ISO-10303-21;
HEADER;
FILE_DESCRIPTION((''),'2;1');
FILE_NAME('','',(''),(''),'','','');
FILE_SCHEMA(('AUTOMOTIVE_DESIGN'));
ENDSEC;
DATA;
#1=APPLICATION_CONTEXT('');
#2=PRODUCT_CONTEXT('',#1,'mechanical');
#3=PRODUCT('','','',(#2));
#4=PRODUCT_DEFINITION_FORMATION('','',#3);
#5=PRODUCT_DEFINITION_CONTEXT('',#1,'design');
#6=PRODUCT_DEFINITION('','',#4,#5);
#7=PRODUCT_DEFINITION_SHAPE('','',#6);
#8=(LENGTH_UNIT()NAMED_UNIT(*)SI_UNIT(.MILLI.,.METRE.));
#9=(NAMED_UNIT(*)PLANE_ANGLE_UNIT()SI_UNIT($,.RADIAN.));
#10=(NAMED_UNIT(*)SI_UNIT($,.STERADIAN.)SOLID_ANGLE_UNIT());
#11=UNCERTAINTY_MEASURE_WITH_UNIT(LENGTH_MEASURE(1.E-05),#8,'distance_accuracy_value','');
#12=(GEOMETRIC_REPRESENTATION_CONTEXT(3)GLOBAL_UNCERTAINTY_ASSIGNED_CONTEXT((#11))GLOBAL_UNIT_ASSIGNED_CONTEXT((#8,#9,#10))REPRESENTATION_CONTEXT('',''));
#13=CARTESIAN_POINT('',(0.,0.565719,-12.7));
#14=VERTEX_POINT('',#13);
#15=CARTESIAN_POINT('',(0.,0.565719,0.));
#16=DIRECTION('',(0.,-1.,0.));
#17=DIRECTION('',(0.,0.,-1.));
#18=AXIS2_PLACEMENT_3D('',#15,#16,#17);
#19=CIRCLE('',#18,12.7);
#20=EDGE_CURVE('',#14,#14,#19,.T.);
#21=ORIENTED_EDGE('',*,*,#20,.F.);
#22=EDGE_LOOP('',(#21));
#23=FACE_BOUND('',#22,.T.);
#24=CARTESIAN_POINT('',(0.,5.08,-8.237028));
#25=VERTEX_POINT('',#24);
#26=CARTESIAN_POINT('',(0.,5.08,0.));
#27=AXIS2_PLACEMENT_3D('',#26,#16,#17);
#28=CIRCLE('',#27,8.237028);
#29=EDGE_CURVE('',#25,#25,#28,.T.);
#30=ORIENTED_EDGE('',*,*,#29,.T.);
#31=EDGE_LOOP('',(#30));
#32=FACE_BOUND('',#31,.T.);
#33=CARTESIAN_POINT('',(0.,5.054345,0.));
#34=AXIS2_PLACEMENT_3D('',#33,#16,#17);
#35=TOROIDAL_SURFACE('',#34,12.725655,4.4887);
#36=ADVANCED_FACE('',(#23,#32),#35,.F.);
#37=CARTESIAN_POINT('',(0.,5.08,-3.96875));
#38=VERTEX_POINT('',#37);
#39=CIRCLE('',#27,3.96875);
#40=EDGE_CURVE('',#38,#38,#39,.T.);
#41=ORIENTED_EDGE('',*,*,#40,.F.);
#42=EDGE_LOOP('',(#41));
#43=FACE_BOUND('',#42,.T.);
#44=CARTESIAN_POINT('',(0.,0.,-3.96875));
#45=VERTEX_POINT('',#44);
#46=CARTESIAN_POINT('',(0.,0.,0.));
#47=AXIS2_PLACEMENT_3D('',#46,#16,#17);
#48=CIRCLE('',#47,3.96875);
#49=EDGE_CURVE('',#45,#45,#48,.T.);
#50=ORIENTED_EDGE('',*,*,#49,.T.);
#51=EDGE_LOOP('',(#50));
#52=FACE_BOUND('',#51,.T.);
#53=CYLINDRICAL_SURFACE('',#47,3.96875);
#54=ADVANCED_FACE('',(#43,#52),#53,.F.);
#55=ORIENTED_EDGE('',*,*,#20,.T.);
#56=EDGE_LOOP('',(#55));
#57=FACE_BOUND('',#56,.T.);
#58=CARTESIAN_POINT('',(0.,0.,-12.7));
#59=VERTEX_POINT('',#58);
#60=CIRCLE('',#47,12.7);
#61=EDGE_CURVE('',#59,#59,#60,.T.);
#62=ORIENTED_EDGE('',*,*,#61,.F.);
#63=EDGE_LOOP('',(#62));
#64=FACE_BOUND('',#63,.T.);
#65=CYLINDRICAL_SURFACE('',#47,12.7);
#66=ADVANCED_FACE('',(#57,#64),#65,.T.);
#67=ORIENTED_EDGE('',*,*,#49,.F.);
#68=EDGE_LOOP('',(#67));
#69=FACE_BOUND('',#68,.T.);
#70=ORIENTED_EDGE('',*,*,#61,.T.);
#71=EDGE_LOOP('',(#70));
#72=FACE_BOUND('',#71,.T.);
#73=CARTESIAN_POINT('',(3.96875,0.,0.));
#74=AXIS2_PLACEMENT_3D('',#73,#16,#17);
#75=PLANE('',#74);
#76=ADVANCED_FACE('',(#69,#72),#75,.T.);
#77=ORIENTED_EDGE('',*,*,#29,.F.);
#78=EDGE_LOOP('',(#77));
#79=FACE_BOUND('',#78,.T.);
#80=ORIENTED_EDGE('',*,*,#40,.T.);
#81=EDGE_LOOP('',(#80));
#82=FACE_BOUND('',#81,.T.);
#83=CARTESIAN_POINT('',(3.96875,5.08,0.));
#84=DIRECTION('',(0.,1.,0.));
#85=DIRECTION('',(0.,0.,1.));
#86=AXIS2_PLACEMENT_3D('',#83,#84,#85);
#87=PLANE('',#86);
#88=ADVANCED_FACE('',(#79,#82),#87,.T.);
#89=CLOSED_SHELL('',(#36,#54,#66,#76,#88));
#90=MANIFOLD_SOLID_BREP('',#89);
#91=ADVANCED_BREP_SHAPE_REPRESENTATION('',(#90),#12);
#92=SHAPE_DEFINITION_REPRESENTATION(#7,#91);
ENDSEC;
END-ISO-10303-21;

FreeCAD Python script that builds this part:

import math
import FreeCAD as App
import Part
import Sketcher
Q = App.Units.Quantity

doc = App.newDocument("Part")
body = doc.addObject("PartDesign::Body", "Body")

# Sketch on XY plane
sketch1 = doc.addObject("Sketcher::SketchObject", "Sketch")
body.addObject(sketch1)
sketch1.AttachmentSupport = (doc.XY_Plane, [""])
sketch1.MapMode = "FlatFace"
sketch1.addGeometry(Part.LineSegment(App.Vector(4, 0, 0), App.Vector(12.7, 0, 0)), False)
sketch1.addGeometry(Part.LineSegment(App.Vector(12.7, 0, 0), App.Vector(12.7, 0.6, 0)), False)
sketch1.addGeometry(Part.ArcOfCircle(Part.Circle(App.Vector(12.7, 5.1, 0), App.Vector(0, 0, 1), 4.5), math.radians(180), math.radians(270)), False)
sketch1.addGeometry(Part.LineSegment(App.Vector(8.2, 5.1, 0), App.Vector(4, 5.1, 0)), False)
sketch1.addGeometry(Part.LineSegment(App.Vector(4, 5.1, 0), App.Vector(4, 0, 0)), False)
sketch1.addConstraint(Sketcher.Constraint("Coincident", 0, 2, 1, 1))
sketch1.addConstraint(Sketcher.Constraint("Coincident", 1, 2, 2, 2))
sketch1.addConstraint(Sketcher.Constraint("Coincident", 2, 1, 3, 1))
sketch1.addConstraint(Sketcher.Constraint("Coincident", 3, 2, 4, 1))
sketch1.addConstraint(Sketcher.Constraint("Coincident", 4, 2, 0, 1))
sketch1.addConstraint(Sketcher.Constraint("Horizontal", 0))
sketch1.addConstraint(Sketcher.Constraint("Vertical", 1))
sketch1.addConstraint(Sketcher.Constraint("Horizontal", 3))
sketch1.addConstraint(Sketcher.Constraint("Vertical", 4))
sketch1.addConstraint(Sketcher.Constraint("PointOnObject", 0, 2, -1))
sketch1.addConstraint(Sketcher.Constraint("DistanceY", 4, 2, 4, 1, Q("0.2 in")))
sketch1.addConstraint(Sketcher.Constraint("DistanceX", -1, 1, 0, 2, Q("0.5 in")))
sketch1.addConstraint(Sketcher.Constraint("DistanceX", 0, 1, 0, 2, Q("0.34375 in")))
sketch1.addConstraint(Sketcher.Constraint("Radius", 2, Q("4.4887 mm")))
sketch1.addConstraint(Sketcher.Constraint("DistanceX", 3, 2, 3, 1, Q("4.268278 mm")))
sketch1.addConstraint(Sketcher.Constraint("DistanceY", 1, 1, 1, 2, Q("0.565719 mm")))
revolution = doc.addObject("PartDesign::Revolution", "Revolution")
body.addObject(revolution)
revolution.Profile = sketch1
revolution.ReferenceAxis = (sketch1, ["V_Axis"])
revolution.Angle = 360

doc.recompute()
